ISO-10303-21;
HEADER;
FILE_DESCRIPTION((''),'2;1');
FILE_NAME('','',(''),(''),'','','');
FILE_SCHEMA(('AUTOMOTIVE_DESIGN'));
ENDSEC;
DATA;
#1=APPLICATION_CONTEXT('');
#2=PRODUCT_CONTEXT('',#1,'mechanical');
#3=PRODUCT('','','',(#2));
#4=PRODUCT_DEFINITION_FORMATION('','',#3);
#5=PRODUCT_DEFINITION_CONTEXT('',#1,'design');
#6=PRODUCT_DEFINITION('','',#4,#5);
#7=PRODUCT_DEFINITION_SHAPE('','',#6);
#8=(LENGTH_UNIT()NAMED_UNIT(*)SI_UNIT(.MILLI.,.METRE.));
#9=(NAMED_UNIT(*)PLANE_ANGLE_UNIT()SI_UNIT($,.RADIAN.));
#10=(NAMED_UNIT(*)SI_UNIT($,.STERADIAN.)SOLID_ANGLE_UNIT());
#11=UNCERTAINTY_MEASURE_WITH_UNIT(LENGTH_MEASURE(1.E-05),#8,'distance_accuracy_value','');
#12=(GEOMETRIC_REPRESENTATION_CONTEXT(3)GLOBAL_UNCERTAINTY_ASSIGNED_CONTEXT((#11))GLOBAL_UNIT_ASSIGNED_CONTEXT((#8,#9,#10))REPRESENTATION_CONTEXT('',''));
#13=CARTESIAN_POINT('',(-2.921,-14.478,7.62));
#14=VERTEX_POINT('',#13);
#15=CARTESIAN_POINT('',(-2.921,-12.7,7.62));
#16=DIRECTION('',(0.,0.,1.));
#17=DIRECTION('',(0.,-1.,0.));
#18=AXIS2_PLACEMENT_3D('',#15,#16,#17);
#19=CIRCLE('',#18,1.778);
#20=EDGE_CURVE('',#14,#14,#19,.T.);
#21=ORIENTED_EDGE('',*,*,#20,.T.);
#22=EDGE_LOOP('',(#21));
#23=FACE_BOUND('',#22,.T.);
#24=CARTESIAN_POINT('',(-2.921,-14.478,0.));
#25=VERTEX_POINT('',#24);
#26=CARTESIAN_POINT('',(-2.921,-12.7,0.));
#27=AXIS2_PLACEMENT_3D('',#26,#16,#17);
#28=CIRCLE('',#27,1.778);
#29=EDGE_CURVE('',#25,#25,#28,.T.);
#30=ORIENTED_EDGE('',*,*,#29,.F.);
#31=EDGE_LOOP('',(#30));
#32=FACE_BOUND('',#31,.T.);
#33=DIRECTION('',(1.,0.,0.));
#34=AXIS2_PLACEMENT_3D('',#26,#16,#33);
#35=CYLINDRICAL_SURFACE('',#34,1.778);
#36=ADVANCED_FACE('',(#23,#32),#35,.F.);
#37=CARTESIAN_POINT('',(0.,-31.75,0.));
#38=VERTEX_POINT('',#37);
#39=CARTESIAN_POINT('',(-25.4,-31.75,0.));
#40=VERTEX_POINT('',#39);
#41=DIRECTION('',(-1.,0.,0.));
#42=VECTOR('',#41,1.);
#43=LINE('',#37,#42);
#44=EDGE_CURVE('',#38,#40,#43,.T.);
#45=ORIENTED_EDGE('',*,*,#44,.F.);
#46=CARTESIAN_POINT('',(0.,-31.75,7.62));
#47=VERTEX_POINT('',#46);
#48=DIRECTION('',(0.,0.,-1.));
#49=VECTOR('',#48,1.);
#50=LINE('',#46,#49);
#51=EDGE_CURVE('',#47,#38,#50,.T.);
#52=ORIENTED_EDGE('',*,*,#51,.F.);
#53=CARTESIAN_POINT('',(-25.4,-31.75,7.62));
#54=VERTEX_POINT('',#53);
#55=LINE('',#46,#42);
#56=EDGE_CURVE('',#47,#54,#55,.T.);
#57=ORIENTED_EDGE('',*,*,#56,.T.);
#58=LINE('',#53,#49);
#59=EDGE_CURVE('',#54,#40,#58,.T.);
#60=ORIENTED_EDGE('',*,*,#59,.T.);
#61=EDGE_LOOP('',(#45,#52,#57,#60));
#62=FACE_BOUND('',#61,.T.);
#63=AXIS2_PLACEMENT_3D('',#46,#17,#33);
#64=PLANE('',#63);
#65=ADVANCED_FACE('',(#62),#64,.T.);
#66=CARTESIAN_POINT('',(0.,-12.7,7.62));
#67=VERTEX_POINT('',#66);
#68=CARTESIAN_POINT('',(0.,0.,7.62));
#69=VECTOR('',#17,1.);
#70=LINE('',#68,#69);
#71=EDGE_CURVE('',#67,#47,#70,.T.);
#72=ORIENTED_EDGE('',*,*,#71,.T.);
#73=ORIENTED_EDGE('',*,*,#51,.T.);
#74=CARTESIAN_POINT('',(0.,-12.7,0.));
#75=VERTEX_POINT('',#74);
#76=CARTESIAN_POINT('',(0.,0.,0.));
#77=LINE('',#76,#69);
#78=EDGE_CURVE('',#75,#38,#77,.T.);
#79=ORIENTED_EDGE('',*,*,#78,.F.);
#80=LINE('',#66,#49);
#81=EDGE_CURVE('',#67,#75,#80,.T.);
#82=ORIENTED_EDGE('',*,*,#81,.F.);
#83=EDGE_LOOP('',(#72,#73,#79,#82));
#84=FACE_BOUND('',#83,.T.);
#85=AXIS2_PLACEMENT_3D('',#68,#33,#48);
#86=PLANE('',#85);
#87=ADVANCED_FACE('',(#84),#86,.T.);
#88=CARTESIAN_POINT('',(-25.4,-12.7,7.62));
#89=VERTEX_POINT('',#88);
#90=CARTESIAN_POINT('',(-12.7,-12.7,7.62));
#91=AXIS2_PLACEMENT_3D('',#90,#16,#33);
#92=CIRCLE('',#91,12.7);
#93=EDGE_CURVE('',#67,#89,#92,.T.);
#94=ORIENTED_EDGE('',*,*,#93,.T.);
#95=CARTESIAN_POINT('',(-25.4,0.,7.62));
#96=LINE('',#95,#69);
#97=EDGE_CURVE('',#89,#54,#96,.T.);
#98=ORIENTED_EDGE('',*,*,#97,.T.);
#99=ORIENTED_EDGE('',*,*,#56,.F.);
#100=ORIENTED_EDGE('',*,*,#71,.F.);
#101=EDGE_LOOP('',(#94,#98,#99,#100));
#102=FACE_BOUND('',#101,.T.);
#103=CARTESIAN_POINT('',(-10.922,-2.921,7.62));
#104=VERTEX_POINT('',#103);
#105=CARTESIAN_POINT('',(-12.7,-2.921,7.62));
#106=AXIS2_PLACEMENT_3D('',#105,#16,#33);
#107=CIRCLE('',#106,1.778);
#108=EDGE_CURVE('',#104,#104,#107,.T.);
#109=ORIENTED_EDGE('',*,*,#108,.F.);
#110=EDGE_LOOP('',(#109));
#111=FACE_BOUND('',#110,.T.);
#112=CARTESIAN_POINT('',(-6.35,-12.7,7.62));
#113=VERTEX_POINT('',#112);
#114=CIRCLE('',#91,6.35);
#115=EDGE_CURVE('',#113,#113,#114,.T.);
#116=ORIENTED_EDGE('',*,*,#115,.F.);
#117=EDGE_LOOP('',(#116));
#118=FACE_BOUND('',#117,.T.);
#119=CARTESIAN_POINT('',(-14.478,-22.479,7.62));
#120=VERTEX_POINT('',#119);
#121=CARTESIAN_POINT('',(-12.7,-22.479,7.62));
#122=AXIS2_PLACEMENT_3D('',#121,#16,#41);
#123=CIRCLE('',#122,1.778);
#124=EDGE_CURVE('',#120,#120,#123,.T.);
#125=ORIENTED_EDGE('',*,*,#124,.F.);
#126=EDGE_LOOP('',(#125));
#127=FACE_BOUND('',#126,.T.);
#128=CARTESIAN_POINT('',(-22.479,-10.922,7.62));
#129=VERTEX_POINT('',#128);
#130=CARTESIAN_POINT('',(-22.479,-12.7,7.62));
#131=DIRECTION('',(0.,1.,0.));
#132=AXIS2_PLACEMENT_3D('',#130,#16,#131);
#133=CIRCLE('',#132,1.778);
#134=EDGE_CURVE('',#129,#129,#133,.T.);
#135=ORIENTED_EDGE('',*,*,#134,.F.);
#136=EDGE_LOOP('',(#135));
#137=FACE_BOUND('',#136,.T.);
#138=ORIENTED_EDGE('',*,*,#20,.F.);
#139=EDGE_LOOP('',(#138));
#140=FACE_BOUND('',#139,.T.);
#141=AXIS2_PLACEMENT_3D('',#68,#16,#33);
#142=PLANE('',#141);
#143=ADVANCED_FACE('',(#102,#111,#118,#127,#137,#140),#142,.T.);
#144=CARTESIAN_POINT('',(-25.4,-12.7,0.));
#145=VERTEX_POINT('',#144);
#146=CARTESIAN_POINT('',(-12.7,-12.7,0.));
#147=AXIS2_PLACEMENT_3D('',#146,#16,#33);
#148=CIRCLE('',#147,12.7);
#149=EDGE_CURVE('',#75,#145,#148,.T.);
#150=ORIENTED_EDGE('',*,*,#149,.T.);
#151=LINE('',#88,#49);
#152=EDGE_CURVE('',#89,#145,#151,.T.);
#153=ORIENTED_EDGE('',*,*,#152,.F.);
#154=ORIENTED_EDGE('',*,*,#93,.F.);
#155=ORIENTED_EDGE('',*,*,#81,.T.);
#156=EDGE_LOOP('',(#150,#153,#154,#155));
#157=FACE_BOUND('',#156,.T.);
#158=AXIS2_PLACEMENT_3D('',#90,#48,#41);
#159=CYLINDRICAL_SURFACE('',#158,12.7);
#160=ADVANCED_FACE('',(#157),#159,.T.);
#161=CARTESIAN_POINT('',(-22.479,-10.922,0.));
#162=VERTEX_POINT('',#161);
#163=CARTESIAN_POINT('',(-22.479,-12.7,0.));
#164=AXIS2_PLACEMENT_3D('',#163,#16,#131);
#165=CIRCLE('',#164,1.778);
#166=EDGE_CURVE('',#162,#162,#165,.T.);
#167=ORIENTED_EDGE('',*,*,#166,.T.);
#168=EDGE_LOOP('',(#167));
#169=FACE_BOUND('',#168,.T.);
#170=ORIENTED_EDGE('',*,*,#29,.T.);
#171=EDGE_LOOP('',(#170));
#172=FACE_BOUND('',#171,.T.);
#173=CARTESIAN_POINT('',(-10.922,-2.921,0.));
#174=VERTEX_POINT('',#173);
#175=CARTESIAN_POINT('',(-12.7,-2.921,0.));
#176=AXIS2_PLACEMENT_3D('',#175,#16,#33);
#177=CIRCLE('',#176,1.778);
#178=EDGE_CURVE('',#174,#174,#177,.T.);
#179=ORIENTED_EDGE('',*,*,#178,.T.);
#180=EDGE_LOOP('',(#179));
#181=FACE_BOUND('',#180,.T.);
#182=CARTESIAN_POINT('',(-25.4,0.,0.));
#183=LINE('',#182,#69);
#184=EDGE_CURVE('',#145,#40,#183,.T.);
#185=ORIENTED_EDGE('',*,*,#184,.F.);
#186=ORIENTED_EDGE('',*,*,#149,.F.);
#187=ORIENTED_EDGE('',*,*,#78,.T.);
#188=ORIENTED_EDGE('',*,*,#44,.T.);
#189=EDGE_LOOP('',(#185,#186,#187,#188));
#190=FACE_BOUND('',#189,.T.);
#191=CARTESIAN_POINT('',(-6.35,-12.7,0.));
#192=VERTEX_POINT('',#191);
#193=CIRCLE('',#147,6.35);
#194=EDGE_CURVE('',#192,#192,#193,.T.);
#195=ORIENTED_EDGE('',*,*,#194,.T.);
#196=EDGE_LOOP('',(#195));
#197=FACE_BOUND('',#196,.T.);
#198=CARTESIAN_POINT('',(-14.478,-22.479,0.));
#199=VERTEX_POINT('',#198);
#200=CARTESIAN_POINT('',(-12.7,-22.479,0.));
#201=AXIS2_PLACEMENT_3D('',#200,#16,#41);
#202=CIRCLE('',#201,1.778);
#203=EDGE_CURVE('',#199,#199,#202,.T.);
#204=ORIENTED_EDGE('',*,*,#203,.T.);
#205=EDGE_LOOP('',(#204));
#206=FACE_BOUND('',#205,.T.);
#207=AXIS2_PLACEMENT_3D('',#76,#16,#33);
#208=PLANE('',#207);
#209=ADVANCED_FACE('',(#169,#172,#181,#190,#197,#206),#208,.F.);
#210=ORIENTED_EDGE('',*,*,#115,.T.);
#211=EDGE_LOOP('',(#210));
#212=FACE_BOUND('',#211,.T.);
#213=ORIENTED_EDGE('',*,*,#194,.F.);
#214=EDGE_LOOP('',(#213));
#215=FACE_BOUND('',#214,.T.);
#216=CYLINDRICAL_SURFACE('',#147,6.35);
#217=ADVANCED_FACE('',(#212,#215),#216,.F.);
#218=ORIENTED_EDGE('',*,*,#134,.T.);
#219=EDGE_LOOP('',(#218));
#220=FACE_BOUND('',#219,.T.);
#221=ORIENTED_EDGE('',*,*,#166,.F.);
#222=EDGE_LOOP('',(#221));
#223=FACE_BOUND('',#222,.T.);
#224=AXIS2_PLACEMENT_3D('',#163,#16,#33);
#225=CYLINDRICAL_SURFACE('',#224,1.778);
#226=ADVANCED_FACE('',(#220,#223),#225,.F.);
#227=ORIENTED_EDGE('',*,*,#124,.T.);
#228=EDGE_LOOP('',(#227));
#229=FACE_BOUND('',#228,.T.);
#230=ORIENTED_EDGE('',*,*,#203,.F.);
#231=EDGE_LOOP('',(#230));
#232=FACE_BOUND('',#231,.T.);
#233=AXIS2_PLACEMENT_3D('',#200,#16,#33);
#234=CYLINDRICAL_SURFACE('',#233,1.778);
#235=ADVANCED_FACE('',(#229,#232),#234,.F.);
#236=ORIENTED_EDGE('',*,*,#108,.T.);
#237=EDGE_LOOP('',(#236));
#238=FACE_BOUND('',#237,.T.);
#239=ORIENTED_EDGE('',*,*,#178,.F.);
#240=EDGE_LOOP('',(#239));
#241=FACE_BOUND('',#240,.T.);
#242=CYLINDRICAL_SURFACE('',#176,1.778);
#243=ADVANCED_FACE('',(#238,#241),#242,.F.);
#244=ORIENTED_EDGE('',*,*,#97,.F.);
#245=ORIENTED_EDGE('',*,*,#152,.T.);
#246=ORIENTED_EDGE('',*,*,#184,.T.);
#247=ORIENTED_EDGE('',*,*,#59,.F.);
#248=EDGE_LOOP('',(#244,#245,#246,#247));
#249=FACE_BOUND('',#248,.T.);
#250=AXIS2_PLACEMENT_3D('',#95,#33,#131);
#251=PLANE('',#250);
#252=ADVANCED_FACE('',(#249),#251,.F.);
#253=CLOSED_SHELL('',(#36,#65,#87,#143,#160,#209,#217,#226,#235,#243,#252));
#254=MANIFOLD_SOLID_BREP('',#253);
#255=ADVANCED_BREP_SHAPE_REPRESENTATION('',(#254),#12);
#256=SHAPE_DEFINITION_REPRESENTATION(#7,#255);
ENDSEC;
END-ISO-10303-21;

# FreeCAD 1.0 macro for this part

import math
import FreeCAD as App
import Part
import Sketcher
from FreeCAD import Vector
Q = App.Units.Quantity

doc = App.newDocument("Part")
body = doc.addObject("PartDesign::Body", "Body")

# Sketch on XY plane
sketch1 = body.newObject("Sketcher::SketchObject", "Sketch")
sketch1.AttachmentSupport = (doc.getObject("XY_Plane"), [""])
sketch1.MapMode = "FlatFace"
sketch1.addGeometry([
    Part.LineSegment(Vector(0, -32, 0), Vector(0, -13, 0)),
    Part.ArcOfCircle(Part.Circle(Vector(-13, -13, 0), Vector(0, 0, 1), 13), math.radians(0), math.radians(180)),
    Part.LineSegment(Vector(-25, -13, 0), Vector(-25, -32, 0)),
    Part.LineSegment(Vector(-25, -32, 0), Vector(0, -32, 0)),
], False)
sketch1.addConstraint([
    Sketcher.Constraint("Tangent", 0, 2, 1, 1),
    Sketcher.Constraint("Tangent", 1, 2, 2, 1),
    Sketcher.Constraint("Coincident", 2, 2, 3, 1),
    Sketcher.Constraint("Coincident", 3, 2, 0, 1),
    Sketcher.Constraint("Vertical", 0),
    Sketcher.Constraint("Vertical", 2),
    Sketcher.Constraint("Horizontal", 3),
    Sketcher.Constraint("PointOnObject", 0, 2, -2),
    Sketcher.Constraint("Radius", 1, Q("0.5 in")),
    Sketcher.Constraint("DistanceY", 0, 1, 0, 2, Q("0.75 in")),
    Sketcher.Constraint("DistanceY", 1, 3, -1, 1, Q("0.5 in")),
])
pad1 = body.newObject("PartDesign::Pad", "Pad")
pad1.Profile = sketch1
pad1.Length = Q("0.3 in")

# Sketch on XY plane
sketch2 = body.newObject("Sketcher::SketchObject", "Sketch001")
sketch2.AttachmentSupport = (doc.getObject("XY_Plane"), [""])
sketch2.MapMode = "FlatFace"
sketch2.AttachmentOffset = App.Placement(Vector(0, 0, 0.3 * 25.4), App.Rotation())
sketch2.addGeometry(Part.Circle(Vector(-13, -13, 0), Vector(0, 0, 1), 6), False)
sketch2.addConstraint([
    Sketcher.Constraint("Diameter", 0, Q("0.5 in")),
    Sketcher.Constraint("DistanceX", 0, 3, -1, 1, Q("0.5 in")),
    Sketcher.Constraint("DistanceY", 0, 3, -1, 1, Q("0.5 in")),
])
pocket1 = body.newObject("PartDesign::Pocket", "Pocket")
pocket1.Profile = sketch2
pocket1.Length = Q("0.3 in")

# Sketch on XY plane
sketch3 = body.newObject("Sketcher::SketchObject", "Sketch002")
sketch3.AttachmentSupport = (doc.getObject("XY_Plane"), [""])
sketch3.MapMode = "FlatFace"
sketch3.AttachmentOffset = App.Placement(Vector(0, 0, 0.3 * 25.4), App.Rotation())
sketch3.addGeometry(Part.Circle(Vector(-12.7, -2.9, 0), Vector(0, 0, 1), 1.8), False)
sketch3.addConstraint([
    Sketcher.Constraint("Diameter", 0, Q("0.14 in")),
    Sketcher.Constraint("DistanceX", 0, 3, -1, 1, Q("0.5 in")),
    Sketcher.Constraint("DistanceY", 0, 3, -1, 1, Q("0.115 in")),
])
pocket2 = body.newObject("PartDesign::Pocket", "Pocket001")
pocket2.Profile = sketch3
pocket2.Length = Q("0.3 in")
doc.recompute()

datumline = body.newObject("PartDesign::Line", "DatumLine")
datumline.Placement = App.Placement(Vector(-12.7, -12.7, 0), App.Rotation(Vector(0, 0, 1), Vector(0, 0, 1)))
polarpattern = body.newObject("PartDesign::PolarPattern", "PolarPattern")
polarpattern.Originals = [pocket2]
polarpattern.Axis = (datumline, [""])
polarpattern.Angle = 360
polarpattern.Occurrences = 4
body.Tip = polarpattern

doc.recompute()
